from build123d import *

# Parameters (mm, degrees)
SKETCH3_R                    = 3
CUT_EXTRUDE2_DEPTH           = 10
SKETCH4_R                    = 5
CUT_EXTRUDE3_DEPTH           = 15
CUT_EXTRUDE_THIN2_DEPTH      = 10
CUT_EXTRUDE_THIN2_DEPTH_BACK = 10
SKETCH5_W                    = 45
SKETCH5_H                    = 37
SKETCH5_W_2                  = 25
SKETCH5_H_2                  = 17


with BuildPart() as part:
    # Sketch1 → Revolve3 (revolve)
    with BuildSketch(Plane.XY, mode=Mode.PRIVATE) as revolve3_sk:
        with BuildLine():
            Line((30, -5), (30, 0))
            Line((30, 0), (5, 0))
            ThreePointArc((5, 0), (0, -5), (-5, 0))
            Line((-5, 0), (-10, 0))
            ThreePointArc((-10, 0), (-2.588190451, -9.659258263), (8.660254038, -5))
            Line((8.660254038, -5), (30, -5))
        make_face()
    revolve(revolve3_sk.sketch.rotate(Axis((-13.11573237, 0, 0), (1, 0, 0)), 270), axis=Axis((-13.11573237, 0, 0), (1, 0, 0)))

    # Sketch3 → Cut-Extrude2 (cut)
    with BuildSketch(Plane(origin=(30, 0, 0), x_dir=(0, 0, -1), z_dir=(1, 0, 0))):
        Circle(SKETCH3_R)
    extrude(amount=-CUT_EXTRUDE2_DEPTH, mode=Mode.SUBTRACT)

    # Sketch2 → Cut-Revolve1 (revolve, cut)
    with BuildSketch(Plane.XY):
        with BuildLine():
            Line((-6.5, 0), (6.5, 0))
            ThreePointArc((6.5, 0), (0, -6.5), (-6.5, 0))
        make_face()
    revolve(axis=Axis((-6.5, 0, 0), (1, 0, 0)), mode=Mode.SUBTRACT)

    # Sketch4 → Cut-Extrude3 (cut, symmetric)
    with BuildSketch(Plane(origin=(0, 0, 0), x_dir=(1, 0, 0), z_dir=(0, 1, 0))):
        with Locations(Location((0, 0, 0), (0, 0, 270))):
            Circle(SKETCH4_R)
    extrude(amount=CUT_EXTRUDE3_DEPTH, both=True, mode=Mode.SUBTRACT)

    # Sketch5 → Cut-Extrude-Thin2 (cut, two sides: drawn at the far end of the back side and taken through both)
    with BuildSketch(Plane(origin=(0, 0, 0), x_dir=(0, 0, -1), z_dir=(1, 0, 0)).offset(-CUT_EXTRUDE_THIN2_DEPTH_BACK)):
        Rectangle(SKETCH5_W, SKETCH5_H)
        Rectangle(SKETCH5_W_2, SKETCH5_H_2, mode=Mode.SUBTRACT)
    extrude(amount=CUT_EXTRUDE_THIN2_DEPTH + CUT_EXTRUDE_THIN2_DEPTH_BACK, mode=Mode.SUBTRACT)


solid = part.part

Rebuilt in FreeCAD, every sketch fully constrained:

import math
import FreeCAD as App
import Part
import Sketcher
from FreeCAD import Vector
Q = App.Units.Quantity

doc = App.newDocument("Part")
body = doc.addObject("PartDesign::Body", "Body")

# Sketch on XY plane
sketch1 = body.newObject("Sketcher::SketchObject", "Sketch")
sketch1.AttachmentSupport = (doc.getObject("XY_Plane"), [""])
sketch1.MapMode = "FlatFace"
sketch1.addGeometry(Part.LineSegment(Vector(30, -5, 0), Vector(30, 0, 0)), False)
sketch1.addGeometry(Part.LineSegment(Vector(30, 0, 0), Vector(5, 0, 0)), False)
sketch1.addGeometry(Part.ArcOfCircle(Part.Circle(Vector(0, 0, 0), Vector(0, 0, 1), 5), math.radians(180), math.radians(360)), False)
sketch1.addGeometry(Part.LineSegment(Vector(-5, 0, 0), Vector(-10, 0, 0)), False)
sketch1.addGeometry(Part.ArcOfCircle(Part.Circle(Vector(0, 0, 0), Vector(0, 0, 1), 10), math.radians(180), math.radians(330)), False)
sketch1.addGeometry(Part.LineSegment(Vector(8.660254, -5, 0), Vector(30, -5, 0)), False)
sketch1.addConstraint(Sketcher.Constraint("Coincident", 0, 2, 1, 1))
sketch1.addConstraint(Sketcher.Constraint("Coincident", 1, 2, 2, 2))
sketch1.addConstraint(Sketcher.Constraint("Coincident", 2, 1, 3, 1))
sketch1.addConstraint(Sketcher.Constraint("Coincident", 3, 2, 4, 1))
sketch1.addConstraint(Sketcher.Constraint("Coincident", 4, 2, 5, 1))
sketch1.addConstraint(Sketcher.Constraint("Coincident", 5, 2, 0, 1))
sketch1.addConstraint(Sketcher.Constraint("Vertical", 0))
sketch1.addConstraint(Sketcher.Constraint("Horizontal", 1))
sketch1.addConstraint(Sketcher.Constraint("Horizontal", 3))
sketch1.addConstraint(Sketcher.Constraint("Horizontal", 5))
sketch1.addConstraint(Sketcher.Constraint("Coincident", 2, 3, -1, 1))
sketch1.addConstraint(Sketcher.Constraint("Coincident", 4, 3, -1, 1))
sketch1.addConstraint(Sketcher.Constraint("PointOnObject", 0, 2, -1))
sketch1.addConstraint(Sketcher.Constraint("PointOnObject", 2, 1, -1))
sketch1.addConstraint(Sketcher.Constraint("Equal", 3, 0))
sketch1.addConstraint(Sketcher.Constraint("Radius", 2, Q("5 mm")))
sketch1.addConstraint(Sketcher.Constraint("Radius", 4, Q("10 mm")))
sketch1.addConstraint(Sketcher.Constraint("DistanceX", 1, 2, 1, 1, Q("25 mm")))
revolution = body.newObject("PartDesign::Revolution", "Revolution")
revolution.Profile = sketch1
revolution.ReferenceAxis = (sketch1, ["H_Axis"])
revolution.Angle = 360

# Sketch on YZ plane
sketch2 = body.newObject("Sketcher::SketchObject", "Sketch001")
sketch2.AttachmentSupport = (doc.getObject("YZ_Plane"), [""])
sketch2.MapMode = "FlatFace"
sketch2.AttachmentOffset = App.Placement(Vector(0, 0, 30), App.Rotation())
sketch2.addGeometry(Part.Circle(Vector(0, 0, 0), Vector(0, 0, 1), 3), False)
sketch2.addConstraint(Sketcher.Constraint("Coincident", 0, 3, -1, 1))
sketch2.addConstraint(Sketcher.Constraint("Diameter", 0, Q("6 mm")))
pocket1 = body.newObject("PartDesign::Pocket", "Pocket")
pocket1.Profile = sketch2
pocket1.Length = 10

# Sketch on XY plane
sketch3 = body.newObject("Sketcher::SketchObject", "Sketch002")
sketch3.AttachmentSupport = (doc.getObject("XY_Plane"), [""])
sketch3.MapMode = "FlatFace"
sketch3.addGeometry(Part.LineSegment(Vector(6.5, 0, 0), Vector(-6.5, 0, 0)), False)
sketch3.addGeometry(Part.ArcOfCircle(Part.Circle(Vector(0, 0, 0), Vector(0, 0, 1), 6.5), math.radians(180), math.radians(360)), False)
sketch3.addConstraint(Sketcher.Constraint("Coincident", 0, 1, 1, 2))
sketch3.addConstraint(Sketcher.Constraint("Coincident", 1, 1, 0, 2))
sketch3.addConstraint(Sketcher.Constraint("Horizontal", 0))
sketch3.addConstraint(Sketcher.Constraint("Coincident", 1, 3, -1, 1))
sketch3.addConstraint(Sketcher.Constraint("PointOnObject", 0, 1, -1))
sketch3.addConstraint(Sketcher.Constraint("Radius", 1, Q("6.5 mm")))
groove = body.newObject("PartDesign::Groove", "Groove")
groove.Profile = sketch3
groove.ReferenceAxis = (sketch3, ["H_Axis"])
groove.Angle = 360

# Sketch on XZ plane
sketch4 = body.newObject("Sketcher::SketchObject", "Sketch003")
sketch4.AttachmentSupport = (doc.getObject("XZ_Plane"), [""])
sketch4.MapMode = "FlatFace"
sketch4.addGeometry(Part.Circle(Vector(0, 0, 0), Vector(0, 0, 1), 5), False)
sketch4.addConstraint(Sketcher.Constraint("Coincident", 0, 3, -1, 1))
sketch4.addConstraint(Sketcher.Constraint("Diameter", 0, Q("10 mm")))
pocket2 = body.newObject("PartDesign::Pocket", "Pocket001")
pocket2.Profile = sketch4
pocket2.Length = 30
pocket2.Midplane = True

# Sketch on YZ plane
sketch5 = body.newObject("Sketcher::SketchObject", "Sketch004")
sketch5.AttachmentSupport = (doc.getObject("YZ_Plane"), [""])
sketch5.MapMode = "FlatFace"
sketch5.addGeometry(Part.LineSegment(Vector(18.5, 22.5, 0), Vector(-18.5, 22.5, 0)), False)
sketch5.addGeometry(Part.LineSegment(Vector(-18.5, 22.5, 0), Vector(-18.5, -22.5, 0)), False)
sketch5.addGeometry(Part.LineSegment(Vector(-18.5, -22.5, 0), Vector(18.5, -22.5, 0)), False)
sketch5.addGeometry(Part.LineSegment(Vector(18.5, -22.5, 0), Vector(18.5, 22.5, 0)), False)
sketch5.addGeometry(Part.LineSegment(Vector(-8.5, -12.5, 0), Vector(-8.5, 12.5, 0)), False)
sketch5.addGeometry(Part.LineSegment(Vector(-8.5, 12.5, 0), Vector(8.5, 12.5, 0)), False)
sketch5.addGeometry(Part.LineSegment(Vector(8.5, 12.5, 0), Vector(8.5, -12.5, 0)), False)
sketch5.addGeometry(Part.LineSegment(Vector(8.5, -12.5, 0), Vector(-8.5, -12.5, 0)), False)
sketch5.addConstraint(Sketcher.Constraint("Coincident", 0, 2, 1, 1))
sketch5.addConstraint(Sketcher.Constraint("Coincident", 1, 2, 2, 1))
sketch5.addConstraint(Sketcher.Constraint("Coincident", 2, 2, 3, 1))
sketch5.addConstraint(Sketcher.Constraint("Coincident", 3, 2, 0, 1))
sketch5.addConstraint(Sketcher.Constraint("Coincident", 4, 2, 5, 1))
sketch5.addConstraint(Sketcher.Constraint("Coincident", 5, 2, 6, 1))
sketch5.addConstraint(Sketcher.Constraint("Coincident", 6, 2, 7, 1))
sketch5.addConstraint(Sketcher.Constraint("Coincident", 7, 2, 4, 1))
sketch5.addConstraint(Sketcher.Constraint("Horizontal", 0))
sketch5.addConstraint(Sketcher.Constraint("Vertical", 1))
sketch5.addConstraint(Sketcher.Constraint("Horizontal", 2))
sketch5.addConstraint(Sketcher.Constraint("Vertical", 3))
sketch5.addConstraint(Sketcher.Constraint("Vertical", 4))
sketch5.addConstraint(Sketcher.Constraint("Horizontal", 5))
sketch5.addConstraint(Sketcher.Constraint("Vertical", 6))
sketch5.addConstraint(Sketcher.Constraint("Horizontal", 7))
sketch5.addConstraint(Sketcher.Constraint("Symmetric", 0, 2, 2, 2, -1, 1))
sketch5.addConstraint(Sketcher.Constraint("Symmetric", 4, 2, 6, 2, -1, 1))
sketch5.addConstraint(Sketcher.Constraint("DistanceX", 0, 2, 0, 1, Q("37 mm")))
sketch5.addConstraint(Sketcher.Constraint("DistanceX", 5, 1, 5, 2, Q("17 mm")))
sketch5.addConstraint(Sketcher.Constraint("DistanceY", 1, 2, 1, 1, Q("45 mm")))
sketch5.addConstraint(Sketcher.Constraint("DistanceY", 4, 1, 4, 2, Q("25 mm")))
pocket3 = body.newObject("PartDesign::Pocket", "Pocket002")
pocket3.Profile = sketch5
pocket3.Type = "ThroughAll"
pocket3.Midplane = True

doc.recompute()
